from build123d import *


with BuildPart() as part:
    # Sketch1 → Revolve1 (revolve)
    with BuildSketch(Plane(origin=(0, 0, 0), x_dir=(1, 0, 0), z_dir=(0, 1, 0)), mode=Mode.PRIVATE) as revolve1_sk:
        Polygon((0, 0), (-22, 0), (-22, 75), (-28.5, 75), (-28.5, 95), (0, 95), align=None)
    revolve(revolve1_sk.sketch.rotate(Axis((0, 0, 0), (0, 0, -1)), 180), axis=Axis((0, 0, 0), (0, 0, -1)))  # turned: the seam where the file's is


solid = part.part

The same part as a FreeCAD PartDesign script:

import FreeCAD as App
import Part
import Sketcher

doc = App.newDocument("Part")
body = doc.addObject("PartDesign::Body", "Body")

# Sketch on XZ plane
sketch1 = doc.addObject("Sketcher::SketchObject", "Sketch")
body.addObject(sketch1)
sketch1.AttachmentSupport = (doc.XZ_Plane, [""])
sketch1.MapMode = "FlatFace"
sketch1.addGeometry([
    Part.LineSegment(App.Vector(-22, 0, 0), App.Vector(0, 0, 0)),  # 0
    Part.LineSegment(App.Vector(0, 0, 0), App.Vector(0, -95, 0)),  # 1
    Part.LineSegment(App.Vector(0, -95, 0), App.Vector(-28, -95, 0)),  # 2
    Part.LineSegment(App.Vector(-28, -95, 0), App.Vector(-28, -75, 0)),  # 3
    Part.LineSegment(App.Vector(-28, -75, 0), App.Vector(-22, -75, 0)),  # 4
    Part.LineSegment(App.Vector(-22, -75, 0), App.Vector(-22, 0, 0)),  # 5
], False)
sketch1.addConstraint([
    Sketcher.Constraint("Coincident", 0, 2, 1, 1),
    Sketcher.Constraint("Coincident", 1, 2, 2, 1),
    Sketcher.Constraint("Coincident", 2, 2, 3, 1),
    Sketcher.Constraint("Coincident", 3, 2, 4, 1),
    Sketcher.Constraint("Coincident", 4, 2, 5, 1),
    Sketcher.Constraint("Coincident", 5, 2, 0, 1),
    Sketcher.Constraint("Horizontal", 0),
    Sketcher.Constraint("Vertical", 1),
    Sketcher.Constraint("Horizontal", 2),
    Sketcher.Constraint("Vertical", 3),
    Sketcher.Constraint("Horizontal", 4),
    Sketcher.Constraint("Vertical", 5),
    Sketcher.Constraint("Coincident", 0, 2, -1, 1),
    Sketcher.Constraint("DistanceX", 0, 1, 0, 2, 22.0),
    Sketcher.Constraint("DistanceY", 1, 2, 1, 1, 95.0),
    Sketcher.Constraint("DistanceY", 3, 1, 3, 2, 20.0),
    Sketcher.Constraint("DistanceX", 2, 2, 2, 1, 28.5),
])
revolution = doc.addObject("PartDesign::Revolution", "Revolution")
body.addObject(revolution)
revolution.Profile = sketch1
revolution.ReferenceAxis = (sketch1, ["V_Axis"])
revolution.Angle = 360

doc.recompute()
